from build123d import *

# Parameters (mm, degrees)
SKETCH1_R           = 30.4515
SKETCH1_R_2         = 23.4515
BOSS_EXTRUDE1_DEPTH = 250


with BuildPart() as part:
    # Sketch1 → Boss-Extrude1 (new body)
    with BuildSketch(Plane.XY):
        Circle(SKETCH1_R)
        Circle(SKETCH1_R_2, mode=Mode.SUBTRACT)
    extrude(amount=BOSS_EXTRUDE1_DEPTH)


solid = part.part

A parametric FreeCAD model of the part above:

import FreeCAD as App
import Part
import Sketcher

doc = App.newDocument("Part")
body = doc.addObject("PartDesign::Body", "Body")

sketch1 = body.newObject("Sketcher::SketchObject", "Sketch")
sketch1.AttachmentSupport = (doc.getObject("XY_Plane"), [""])
sketch1.MapMode = "FlatFace"
sketch1.addGeometry([
    Part.Circle(App.Vector(0, 0, 0), App.Vector(0, 0, 1), 30.4515),
    Part.Circle(App.Vector(0, 0, 0), App.Vector(0, 0, 1), 23.4515),
], False)
sketch1.addConstraint([
    Sketcher.Constraint("Coincident", 0, 3, -1, 1),
    Sketcher.Constraint("Coincident", 1, 3, -1, 1),
    Sketcher.Constraint("Diameter", 0, 60.903),
    Sketcher.Constraint("Diameter", 1, 46.903),
])
pad1 = body.newObject("PartDesign::Pad", "Pad")
pad1.Profile = sketch1
pad1.Length = 250

doc.recompute()
